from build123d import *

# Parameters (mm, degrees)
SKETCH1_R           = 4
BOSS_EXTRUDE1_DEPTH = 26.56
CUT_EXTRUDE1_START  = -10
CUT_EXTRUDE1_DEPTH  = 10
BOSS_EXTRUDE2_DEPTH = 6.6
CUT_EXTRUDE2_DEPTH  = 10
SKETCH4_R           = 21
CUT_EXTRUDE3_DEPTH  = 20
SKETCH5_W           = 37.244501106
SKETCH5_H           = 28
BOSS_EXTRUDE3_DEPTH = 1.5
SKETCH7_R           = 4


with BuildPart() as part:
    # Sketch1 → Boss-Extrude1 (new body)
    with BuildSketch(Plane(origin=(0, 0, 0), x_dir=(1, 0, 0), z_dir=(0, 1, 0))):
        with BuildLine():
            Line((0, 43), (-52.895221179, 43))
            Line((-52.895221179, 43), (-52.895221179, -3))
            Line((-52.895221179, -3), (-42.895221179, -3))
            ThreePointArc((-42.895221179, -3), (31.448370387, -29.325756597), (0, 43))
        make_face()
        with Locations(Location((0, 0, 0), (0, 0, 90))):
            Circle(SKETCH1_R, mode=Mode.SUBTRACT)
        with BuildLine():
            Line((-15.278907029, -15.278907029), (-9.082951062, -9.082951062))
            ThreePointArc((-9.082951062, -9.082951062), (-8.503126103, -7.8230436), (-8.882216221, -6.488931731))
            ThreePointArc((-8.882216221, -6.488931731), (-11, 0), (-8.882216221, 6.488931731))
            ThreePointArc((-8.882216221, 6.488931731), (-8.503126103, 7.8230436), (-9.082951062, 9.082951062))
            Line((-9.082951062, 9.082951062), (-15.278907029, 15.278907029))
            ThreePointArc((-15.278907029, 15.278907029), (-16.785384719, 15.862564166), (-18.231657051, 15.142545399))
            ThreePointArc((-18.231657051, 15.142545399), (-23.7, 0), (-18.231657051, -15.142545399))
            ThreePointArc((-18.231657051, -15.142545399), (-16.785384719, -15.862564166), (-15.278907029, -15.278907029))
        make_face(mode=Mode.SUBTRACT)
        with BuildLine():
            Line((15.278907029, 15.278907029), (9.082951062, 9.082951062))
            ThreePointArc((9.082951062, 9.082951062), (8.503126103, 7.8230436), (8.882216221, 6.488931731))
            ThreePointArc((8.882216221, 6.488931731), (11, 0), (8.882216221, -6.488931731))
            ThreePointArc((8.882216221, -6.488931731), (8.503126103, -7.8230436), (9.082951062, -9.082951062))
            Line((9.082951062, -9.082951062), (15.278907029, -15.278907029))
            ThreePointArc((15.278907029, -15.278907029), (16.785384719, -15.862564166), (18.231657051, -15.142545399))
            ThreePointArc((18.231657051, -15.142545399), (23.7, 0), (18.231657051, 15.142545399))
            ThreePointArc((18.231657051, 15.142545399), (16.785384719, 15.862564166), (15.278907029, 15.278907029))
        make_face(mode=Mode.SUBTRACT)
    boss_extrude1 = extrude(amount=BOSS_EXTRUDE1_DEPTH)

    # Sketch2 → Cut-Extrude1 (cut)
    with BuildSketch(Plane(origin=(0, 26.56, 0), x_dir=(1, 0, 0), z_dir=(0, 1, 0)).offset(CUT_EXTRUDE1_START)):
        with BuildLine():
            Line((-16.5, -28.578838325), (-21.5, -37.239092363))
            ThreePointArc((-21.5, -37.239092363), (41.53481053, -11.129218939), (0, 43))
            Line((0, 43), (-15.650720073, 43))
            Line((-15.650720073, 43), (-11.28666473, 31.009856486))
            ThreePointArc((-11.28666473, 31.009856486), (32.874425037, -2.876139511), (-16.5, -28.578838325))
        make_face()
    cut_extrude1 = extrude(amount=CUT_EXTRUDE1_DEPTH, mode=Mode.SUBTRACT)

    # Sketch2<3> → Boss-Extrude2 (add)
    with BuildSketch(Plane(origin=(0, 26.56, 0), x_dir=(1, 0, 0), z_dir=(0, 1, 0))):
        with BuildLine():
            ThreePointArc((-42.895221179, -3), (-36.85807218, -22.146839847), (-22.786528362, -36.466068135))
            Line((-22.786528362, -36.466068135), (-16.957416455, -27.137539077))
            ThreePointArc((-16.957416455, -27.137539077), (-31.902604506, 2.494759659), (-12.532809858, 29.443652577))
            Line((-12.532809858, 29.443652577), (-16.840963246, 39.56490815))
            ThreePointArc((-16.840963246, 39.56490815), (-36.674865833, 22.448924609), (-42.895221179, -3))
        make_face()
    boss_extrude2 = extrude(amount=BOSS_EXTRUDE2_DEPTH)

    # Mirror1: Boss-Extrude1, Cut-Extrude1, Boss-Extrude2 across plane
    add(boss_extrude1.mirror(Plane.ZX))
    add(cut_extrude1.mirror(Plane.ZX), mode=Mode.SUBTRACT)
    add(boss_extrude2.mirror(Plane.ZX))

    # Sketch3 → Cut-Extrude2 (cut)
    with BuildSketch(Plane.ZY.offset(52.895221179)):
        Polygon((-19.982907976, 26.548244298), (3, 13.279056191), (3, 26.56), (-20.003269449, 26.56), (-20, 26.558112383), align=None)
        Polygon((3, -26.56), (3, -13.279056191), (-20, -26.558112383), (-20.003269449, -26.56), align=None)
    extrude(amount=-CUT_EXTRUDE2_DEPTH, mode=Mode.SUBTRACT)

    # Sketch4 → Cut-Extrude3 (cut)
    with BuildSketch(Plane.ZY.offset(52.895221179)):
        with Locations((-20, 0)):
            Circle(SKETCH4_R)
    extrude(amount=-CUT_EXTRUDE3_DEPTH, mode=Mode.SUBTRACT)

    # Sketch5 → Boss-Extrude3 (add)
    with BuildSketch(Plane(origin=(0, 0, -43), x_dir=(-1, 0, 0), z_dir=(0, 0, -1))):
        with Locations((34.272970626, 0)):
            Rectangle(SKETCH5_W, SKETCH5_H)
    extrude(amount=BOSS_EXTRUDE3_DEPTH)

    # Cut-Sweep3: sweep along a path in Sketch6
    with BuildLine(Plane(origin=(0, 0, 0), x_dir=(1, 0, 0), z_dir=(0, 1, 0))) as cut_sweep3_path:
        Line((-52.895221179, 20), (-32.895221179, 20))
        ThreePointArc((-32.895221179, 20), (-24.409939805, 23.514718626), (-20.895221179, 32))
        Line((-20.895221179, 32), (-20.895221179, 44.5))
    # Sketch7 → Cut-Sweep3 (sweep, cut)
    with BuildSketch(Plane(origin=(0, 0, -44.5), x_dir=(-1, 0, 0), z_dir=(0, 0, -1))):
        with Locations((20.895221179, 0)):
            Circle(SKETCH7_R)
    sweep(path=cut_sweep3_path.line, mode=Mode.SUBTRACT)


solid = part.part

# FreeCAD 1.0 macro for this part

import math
import FreeCAD as App
import Part
import Sketcher
Q = App.Units.Quantity


def add_polygon(sketch, points):
    """Adds a closed chain of lines whose ends are joined by coincident constraints."""
    first, n = sketch.GeometryCount, len(points)
    for a, b in zip(points, points[1:] + points[:1]):
        sketch.addGeometry(Part.LineSegment(App.Vector(*a, 0), App.Vector(*b, 0)), False)
    for i in range(n):
        sketch.addConstraint(Sketcher.Constraint("Coincident", first + i, 2, first + (i + 1) % n, 1))

doc = App.newDocument("Part")
body = doc.addObject("PartDesign::Body", "Body")

# Sketch on XZ plane
sketch1 = doc.addObject("Sketcher::SketchObject", "Sketch")
body.addObject(sketch1)
sketch1.AttachmentSupport = (doc.XZ_Plane, [""])
sketch1.MapMode = "FlatFace"
sketch1.addGeometry([
    Part.LineSegment(App.Vector(0, -43, 0), App.Vector(-52.9, -43, 0)),  # 0
    Part.LineSegment(App.Vector(-52.9, -43, 0), App.Vector(-52.9, 3, 0)),  # 1
    Part.LineSegment(App.Vector(-52.9, 3, 0), App.Vector(-42.9, 3, 0)),  # 2
    Part.ArcOfCircle(Part.Circle(App.Vector(0, 0, 0), App.Vector(0, 0, 1), 43), math.radians(-90), math.radians(176)),  # 3
    Part.LineSegment(App.Vector(-9.1, 9.1, 0), App.Vector(-15.3, 15.3, 0)),  # 4
    Part.ArcOfCircle(Part.Circle(App.Vector(-16.7, 13.9, 0), App.Vector(0, 0, 1), 2), math.radians(45), math.radians(140)),  # 5
    Part.ArcOfCircle(Part.Circle(App.Vector(0, 0, 0), App.Vector(0, 0, 1), 23.7), math.radians(140), math.radians(220)),  # 6
    Part.ArcOfCircle(Part.Circle(App.Vector(-16.7, -13.9, 0), App.Vector(0, 0, 1), 2), math.radians(-140), math.radians(-45)),  # 7
    Part.LineSegment(App.Vector(-15.3, -15.3, 0), App.Vector(-9.1, -9.1, 0)),  # 8
    Part.ArcOfCircle(Part.Circle(App.Vector(-10.5, -7.7, 0), App.Vector(0, 0, 1), 2), math.radians(-45), math.radians(36)),  # 9
    Part.ArcOfCircle(Part.Circle(App.Vector(0, 0, 0), App.Vector(0, 0, 1), 11), math.radians(144), math.radians(216)),  # 10
    Part.ArcOfCircle(Part.Circle(App.Vector(-10.5, 7.7, 0), App.Vector(0, 0, 1), 2), math.radians(-36), math.radians(45)),  # 11
    Part.Circle(App.Vector(0, 0, 0), App.Vector(0, 0, 1), 4),  # 12
    Part.LineSegment(App.Vector(9.1, -9.1, 0), App.Vector(15.3, -15.3, 0)),  # 13
    Part.ArcOfCircle(Part.Circle(App.Vector(16.7, -13.9, 0), App.Vector(0, 0, 1), 2), math.radians(-135), math.radians(-40)),  # 14
    Part.ArcOfCircle(Part.Circle(App.Vector(0, 0, 0), App.Vector(0, 0, 1), 23.7), math.radians(-40), math.radians(40)),  # 15
    Part.ArcOfCircle(Part.Circle(App.Vector(16.7, 13.9, 0), App.Vector(0, 0, 1), 2), math.radians(40), math.radians(135)),  # 16
    Part.LineSegment(App.Vector(15.3, 15.3, 0), App.Vector(9.1, 9.1, 0)),  # 17
    Part.ArcOfCircle(Part.Circle(App.Vector(10.5, 7.7, 0), App.Vector(0, 0, 1), 2), math.radians(135), math.radians(216)),  # 18
    Part.ArcOfCircle(Part.Circle(App.Vector(0, 0, 0), App.Vector(0, 0, 1), 11), math.radians(-36), math.radians(36)),  # 19
    Part.ArcOfCircle(Part.Circle(App.Vector(10.5, -7.7, 0), App.Vector(0, 0, 1), 2), math.radians(144), math.radians(225)),  # 20
], False)
sketch1.addConstraint([
    Sketcher.Constraint("Coincident", 0, 2, 1, 1),
    Sketcher.Constraint("Coincident", 1, 2, 2, 1),
    Sketcher.Constraint("Coincident", 2, 2, 3, 2),
    Sketcher.Constraint("Tangent", 3, 1, 0, 1),
    Sketcher.Constraint("Tangent", 4, 2, 5, 1),
    Sketcher.Constraint("Tangent", 5, 2, 6, 1),
    Sketcher.Constraint("Tangent", 6, 2, 7, 1),
    Sketcher.Constraint("Tangent", 7, 2, 8, 1),
    Sketcher.Constraint("Tangent", 8, 2, 9, 1),
    Sketcher.Constraint("Tangent", 9, 2, 10, 2),
    Sketcher.Constraint("Tangent", 10, 1, 11, 1),
    Sketcher.Constraint("Tangent", 11, 2, 4, 1),
    Sketcher.Constraint("Tangent", 13, 2, 14, 1),
    Sketcher.Constraint("Tangent", 14, 2, 15, 1),
    Sketcher.Constraint("Tangent", 15, 2, 16, 1),
    Sketcher.Constraint("Tangent", 16, 2, 17, 1),
    Sketcher.Constraint("Tangent", 17, 2, 18, 1),
    Sketcher.Constraint("Tangent", 18, 2, 19, 2),
    Sketcher.Constraint("Tangent", 19, 1, 20, 1),
    Sketcher.Constraint("Tangent", 20, 2, 13, 1),
    Sketcher.Constraint("Horizontal", 0),
    Sketcher.Constraint("Vertical", 1),
    Sketcher.Constraint("Horizontal", 2),
    Sketcher.Constraint("Coincident", 3, 3, -1, 1),
    Sketcher.Constraint("Coincident", 6, 3, -1, 1),
    Sketcher.Constraint("Coincident", 10, 3, -1, 1),
    Sketcher.Constraint("Coincident", 12, 3, -1, 1),
    Sketcher.Constraint("Coincident", 15, 3, -1, 1),
    Sketcher.Constraint("Coincident", 19, 3, -1, 1),
    Sketcher.Constraint("Equal", 5, 7),
    Sketcher.Constraint("Equal", 7, 9),
    Sketcher.Constraint("Equal", 9, 11),
    Sketcher.Constraint("Equal", 11, 14),
    Sketcher.Constraint("Equal", 6, 15),
    Sketcher.Constraint("Equal", 14, 16),
    Sketcher.Constraint("Equal", 16, 18),
    Sketcher.Constraint("Equal", 10, 19),
    Sketcher.Constraint("Equal", 18, 20),
    Sketcher.Constraint("Symmetric", 4, 2, 13, 2, -1, 1),
    Sketcher.Constraint("Symmetric", 7, 2, 16, 2, -1, 1),
    Sketcher.Constraint("Symmetric", 7, 2, 13, 2, -2),
    Sketcher.Constraint("Perpendicular", 4, 8),
    Sketcher.Constraint("Diameter", 12, Q("8 mm")),
    Sketcher.Constraint("Radius", 3, Q("43 mm")),
    Sketcher.Constraint("Radius", 5, Q("2 mm")),
    Sketcher.Constraint("Radius", 10, Q("11 mm")),
    Sketcher.Constraint("Radius", 6, Q("23.7 mm")),
    Sketcher.Constraint("DistanceX", 2, 1, 2, 2, Q("10 mm")),
    Sketcher.Constraint("DistanceY", 1, 1, 1, 2, Q("46 mm")),
    Sketcher.Constraint("DistanceX", 0, 2, 7, 3, Q("36.202101 mm")),
])
pad1 = doc.addObject("PartDesign::Pad", "Pad")
body.addObject(pad1)
pad1.Profile = sketch1
pad1.Length = 26.56
pad1.Reversed = True

# Sketch on XZ plane
sketch2 = doc.addObject("Sketcher::SketchObject", "Sketch001")
body.addObject(sketch2)
sketch2.AttachmentSupport = (doc.XZ_Plane, [""])
sketch2.MapMode = "FlatFace"
sketch2.AttachmentOffset = App.Placement(App.Vector(0, 0, -16.56), App.Rotation())
sketch2.addGeometry([
    Part.LineSegment(App.Vector(-16, 29, 0), App.Vector(-22, 37, 0)),  # 0
    Part.ArcOfCircle(Part.Circle(App.Vector(0, 0, 0), App.Vector(0, 0, 1), 43), math.radians(-90), math.radians(120)),  # 1
    Part.LineSegment(App.Vector(0, -43, 0), App.Vector(-16, -43, 0)),  # 2
    Part.LineSegment(App.Vector(-16, -43, 0), App.Vector(-11, -31, 0)),  # 3
    Part.ArcOfCircle(Part.Circle(App.Vector(0, 0, 0), App.Vector(0, 0, 1), 33), math.radians(-110), math.radians(120)),  # 4
], False)
sketch2.addConstraint([
    Sketcher.Constraint("Coincident", 0, 2, 1, 2),
    Sketcher.Constraint("Tangent", 1, 1, 2, 1),
    Sketcher.Constraint("Coincident", 2, 2, 3, 1),
    Sketcher.Constraint("Coincident", 3, 2, 4, 1),
    Sketcher.Constraint("Coincident", 4, 2, 0, 1),
    Sketcher.Constraint("Horizontal", 2),
    Sketcher.Constraint("Coincident", 1, 3, -1, 1),
    Sketcher.Constraint("Coincident", 4, 3, -1, 1),
    Sketcher.Constraint("Radius", 1, Q("43 mm")),
    Sketcher.Constraint("Radius", 4, Q("33 mm")),
    Sketcher.Constraint("Angle", 0, Q("120 deg")),
    Sketcher.Constraint("Angle", 3, Q("70 deg")),
    Sketcher.Constraint("DistanceX", 0, 2, -1, 1, Q("21.5 mm")),
    Sketcher.Constraint("DistanceX", 2, 2, 2, 1, Q("15.65072 mm")),
])
pocket1 = doc.addObject("PartDesign::Pocket", "Pocket")
body.addObject(pocket1)
pocket1.Profile = sketch2
pocket1.Length = 10

# Sketch on XZ plane
sketch3 = doc.addObject("Sketcher::SketchObject", "Sketch002")
body.addObject(sketch3)
sketch3.AttachmentSupport = (doc.XZ_Plane, [""])
sketch3.MapMode = "FlatFace"
sketch3.AttachmentOffset = App.Placement(App.Vector(0, 0, -26.56), App.Rotation())
sketch3.addGeometry([
    Part.ArcOfCircle(Part.Circle(App.Vector(0, 0, 0), App.Vector(0, 0, 1), 43), math.radians(122), math.radians(176)),  # 0
    Part.LineSegment(App.Vector(-23, 36, 0), App.Vector(-17, 27, 0)),  # 1
    Part.ArcOfCircle(Part.Circle(App.Vector(0, 0, 0), App.Vector(0, 0, 1), 32), math.radians(122), math.radians(247)),  # 2
    Part.LineSegment(App.Vector(-13, -29, 0), App.Vector(-17, -40, 0)),  # 3
    Part.ArcOfCircle(Part.Circle(App.Vector(0, 0, 0), App.Vector(0, 0, 1), 43), math.radians(176), math.radians(247)),  # 4
], False)
sketch3.addConstraint([
    Sketcher.Constraint("Coincident", 0, 1, 1, 1),
    Sketcher.Constraint("Coincident", 1, 2, 2, 1),
    Sketcher.Constraint("Coincident", 2, 2, 3, 1),
    Sketcher.Constraint("Coincident", 3, 2, 4, 2),
    Sketcher.Constraint("Tangent", 4, 1, 0, 2),
    Sketcher.Constraint("Coincident", 0, 3, -1, 1),
    Sketcher.Constraint("Coincident", 2, 3, -1, 1),
    Sketcher.Constraint("Equal", 0, 4),
    Sketcher.Constraint("Radius", 0, Q("43 mm")),
    Sketcher.Constraint("Radius", 2, Q("32 mm")),
    Sketcher.Constraint("Angle", 1, Q("-58 deg")),
    Sketcher.Constraint("DistanceY", -1, 1, 4, 1, Q("3 mm")),
    Sketcher.Constraint("DistanceX", 0, 1, -1, 1, Q("22.786528 mm")),
    Sketcher.Constraint("DistanceX", 2, 2, -1, 1, Q("12.53281 mm")),
    Sketcher.Constraint("DistanceY", 3, 2, -1, 1, Q("39.564908 mm")),
])
pad2 = doc.addObject("PartDesign::Pad", "Pad001")
body.addObject(pad2)
pad2.Profile = sketch3
pad2.Length = 6.6
pad2.Reversed = True
doc.recompute()

mirrored = doc.addObject("PartDesign::Mirrored", "Mirrored")
body.addObject(mirrored)
mirrored.Originals = [pad1, pocket1, pad2]
mirrored.MirrorPlane = (doc.XZ_Plane, [""])
body.Tip = mirrored

# Sketch on YZ plane
sketch4 = doc.addObject("Sketcher::SketchObject", "Sketch003")
body.addObject(sketch4)
sketch4.AttachmentSupport = (doc.YZ_Plane, [""])
sketch4.MapMode = "FlatFace"
sketch4.AttachmentOffset = App.Placement(App.Vector(0, 0, -52.895221), App.Rotation())
add_polygon(sketch4, [(26.548244, -19.982908), (13.279056, 3), (26.56, 3), (26.56, -20.003269), (26.558112, -20)])  # lines 0-4
add_polygon(sketch4, [(-26.56, 3), (-13.279056, 3), (-26.558112, -20), (-26.56, -20.003269)])  # lines 5-8
sketch4.addConstraint([
    Sketcher.Constraint("Horizontal", 1),
    Sketcher.Constraint("Vertical", 2),
    Sketcher.Constraint("Horizontal", 5),
    Sketcher.Constraint("Vertical", 8),
    Sketcher.Constraint("Symmetric", 0, 2, 5, 2, -2),
    Sketcher.Constraint("Symmetric", 3, 2, 6, 2, -2),
    Sketcher.Constraint("Symmetric", 2, 2, 7, 2, -2),
    Sketcher.Constraint("Parallel", 0, 3),
    Sketcher.Constraint("Parallel", 3, 4),
    Sketcher.Constraint("Angle", 0, Q("120 deg")),
    Sketcher.Constraint("DistanceY", -1, 1, 0, 2, Q("3 mm")),
    Sketcher.Constraint("DistanceY", 3, 2, -1, 1, Q("20 mm")),
    Sketcher.Constraint("DistanceX", -1, 1, 1, 2, Q("26.56 mm")),
    Sketcher.Constraint("DistanceY", 2, 2, 2, 1, Q("23.003269 mm")),
    Sketcher.Constraint("DistanceX", 5, 2, 4, 2, Q("39.8273 mm")),
])
pocket2 = doc.addObject("PartDesign::Pocket", "Pocket001")
body.addObject(pocket2)
pocket2.Profile = sketch4
pocket2.Length = 10
pocket2.Reversed = True

# Sketch on YZ plane
sketch5 = doc.addObject("Sketcher::SketchObject", "Sketch004")
body.addObject(sketch5)
sketch5.AttachmentSupport = (doc.YZ_Plane, [""])
sketch5.MapMode = "FlatFace"
sketch5.AttachmentOffset = App.Placement(App.Vector(0, 0, -52.895221), App.Rotation())
sketch5.addGeometry(Part.Circle(App.Vector(0, -20, 0), App.Vector(0, 0, 1), 21), False)
sketch5.addConstraint([
    Sketcher.Constraint("PointOnObject", 0, 3, -2),
    Sketcher.Constraint("Diameter", 0, Q("42 mm")),
    Sketcher.Constraint("DistanceY", 0, 3, -1, 1, Q("20 mm")),
])
pocket3 = doc.addObject("PartDesign::Pocket", "Pocket002")
body.addObject(pocket3)
pocket3.Profile = sketch5
pocket3.Length = 20
pocket3.Reversed = True

# Sketch on XY plane
sketch6 = doc.addObject("Sketcher::SketchObject", "Sketch005")
body.addObject(sketch6)
sketch6.AttachmentSupport = (doc.XY_Plane, [""])
sketch6.MapMode = "FlatFace"
sketch6.AttachmentOffset = App.Placement(App.Vector(0, 0, -43), App.Rotation())
add_polygon(sketch6, [(-16, 14), (-16, -14), (-53, -14), (-53, 14)])  # lines 0-3
sketch6.addConstraint([
    Sketcher.Constraint("Vertical", 0),
    Sketcher.Constraint("Horizontal", 1),
    Sketcher.Constraint("Vertical", 2),
    Sketcher.Constraint("Horizontal", 3),
    Sketcher.Constraint("DistanceY", 0, 2, 0, 1, Q("28 mm")),
    Sketcher.Constraint("DistanceY", 0, 2, -1, 1, Q("14 mm")),
    Sketcher.Constraint("DistanceX", 1, 2, 1, 1, Q("37.244501 mm")),
    Sketcher.Constraint("DistanceX", 0, 2, -1, 1, Q("15.65072 mm")),
])
pad3 = doc.addObject("PartDesign::Pad", "Pad002")
body.addObject(pad3)
pad3.Profile = sketch6
pad3.Length = 1.5
pad3.Reversed = True

# Sketch on XY plane
sketch7 = doc.addObject("Sketcher::SketchObject", "Sketch006")
body.addObject(sketch7)
sketch7.AttachmentSupport = (doc.XY_Plane, [""])
sketch7.MapMode = "FlatFace"
sketch7.AttachmentOffset = App.Placement(App.Vector(0, 0, -44.5), App.Rotation())
sketch7.addGeometry(Part.Circle(App.Vector(-20.9, 0, 0), App.Vector(0, 0, 1), 4), False)
sketch7.addConstraint([
    Sketcher.Constraint("PointOnObject", 0, 3, -1),
    Sketcher.Constraint("Diameter", 0, Q("8 mm")),
    Sketcher.Constraint("DistanceX", 0, 3, -1, 1, Q("20.895221 mm")),
])

# Sketch on XZ plane
sketch8 = doc.addObject("Sketcher::SketchObject", "Sketch007")
body.addObject(sketch8)
sketch8.AttachmentSupport = (doc.XZ_Plane, [""])
sketch8.MapMode = "FlatFace"
sketch8.addGeometry([
    Part.LineSegment(App.Vector(-53, -20, 0), App.Vector(-33, -20, 0)),
    Part.ArcOfCircle(Part.Circle(App.Vector(-33, -32, 0), App.Vector(0, 0, 1), 12), math.radians(0), math.radians(90)),
    Part.LineSegment(App.Vector(-21, -32, 0), App.Vector(-21, -44, 0)),
], False)
sketch8.addConstraint([
    Sketcher.Constraint("Tangent", 0, 2, 1, 2),
    Sketcher.Constraint("Tangent", 1, 1, 2, 1),
    Sketcher.Constraint("Horizontal", 0),
    Sketcher.Constraint("Vertical", 2),
    Sketcher.Constraint("Radius", 1, Q("12 mm")),
    Sketcher.Constraint("DistanceX", 0, 1, 0, 2, Q("20 mm")),
    Sketcher.Constraint("DistanceY", 2, 2, 2, 1, Q("12.5 mm")),
    Sketcher.Constraint("DistanceY", 1, 3, -1, 1, Q("32 mm")),
    Sketcher.Constraint("DistanceX", 1, 3, -1, 1, Q("32.895221 mm")),
])
doc.recompute()

subtractivepipe = doc.addObject("PartDesign::SubtractivePipe", "SubtractivePipe")
body.addObject(subtractivepipe)
subtractivepipe.Profile = sketch7
subtractivepipe.Spine = (sketch8, ["Edge1", "Edge2", "Edge3"])

doc.recompute()
